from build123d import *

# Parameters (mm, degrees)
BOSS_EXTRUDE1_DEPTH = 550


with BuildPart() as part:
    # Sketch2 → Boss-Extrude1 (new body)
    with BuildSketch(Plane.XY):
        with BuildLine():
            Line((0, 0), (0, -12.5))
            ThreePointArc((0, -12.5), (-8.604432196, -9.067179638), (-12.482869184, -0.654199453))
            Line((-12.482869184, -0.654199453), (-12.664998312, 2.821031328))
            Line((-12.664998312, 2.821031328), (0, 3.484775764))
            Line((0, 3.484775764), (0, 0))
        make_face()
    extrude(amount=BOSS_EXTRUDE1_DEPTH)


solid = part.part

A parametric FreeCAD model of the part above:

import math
import FreeCAD as App
import Part
import Sketcher
Q = App.Units.Quantity

doc = App.newDocument("Part")
body = doc.addObject("PartDesign::Body", "Body")

# Sketch on XY plane
sketch1 = body.newObject("Sketcher::SketchObject", "Sketch")
sketch1.AttachmentSupport = (doc.getObject("XY_Plane"), [""])
sketch1.MapMode = "FlatFace"
sketch1.addGeometry(Part.ArcOfCircle(Part.Circle(App.Vector(0, 0, 0), App.Vector(0, 0, 1), 12.5), math.radians(-177), math.radians(-90)), False)
sketch1.addGeometry(Part.LineSegment(App.Vector(0, -12.5, 0), App.Vector(0, 3.484776, 0)), False)
sketch1.addGeometry(Part.LineSegment(App.Vector(0, 3.484776, 0), App.Vector(-12.664998, 2.821031, 0)), False)
sketch1.addGeometry(Part.LineSegment(App.Vector(-12.664998, 2.821031, 0), App.Vector(-12.482869, -0.654199, 0)), False)
sketch1.addConstraint(Sketcher.Constraint("Coincident", 0, 2, 1, 1))
sketch1.addConstraint(Sketcher.Constraint("Coincident", 1, 2, 2, 1))
sketch1.addConstraint(Sketcher.Constraint("Coincident", 2, 2, 3, 1))
sketch1.addConstraint(Sketcher.Constraint("Tangent", 3, 2, 0, 1))
sketch1.addConstraint(Sketcher.Constraint("Vertical", 1))
sketch1.addConstraint(Sketcher.Constraint("Coincident", 0, 3, -1, 1))
sketch1.addConstraint(Sketcher.Constraint("PointOnObject", 0, 2, -2))
sketch1.addConstraint(Sketcher.Constraint("Perpendicular", 2, 3))
sketch1.addConstraint(Sketcher.Constraint("Radius", 0, Q("12.5 mm")))
sketch1.addConstraint(Sketcher.Constraint("Angle", 2, Q("-177 deg")))
sketch1.addConstraint(Sketcher.Constraint("Distance", 3, Q("3.48 mm")))
pad1 = body.newObject("PartDesign::Pad", "Pad")
pad1.Profile = sketch1
pad1.Length = 550

doc.recompute()
